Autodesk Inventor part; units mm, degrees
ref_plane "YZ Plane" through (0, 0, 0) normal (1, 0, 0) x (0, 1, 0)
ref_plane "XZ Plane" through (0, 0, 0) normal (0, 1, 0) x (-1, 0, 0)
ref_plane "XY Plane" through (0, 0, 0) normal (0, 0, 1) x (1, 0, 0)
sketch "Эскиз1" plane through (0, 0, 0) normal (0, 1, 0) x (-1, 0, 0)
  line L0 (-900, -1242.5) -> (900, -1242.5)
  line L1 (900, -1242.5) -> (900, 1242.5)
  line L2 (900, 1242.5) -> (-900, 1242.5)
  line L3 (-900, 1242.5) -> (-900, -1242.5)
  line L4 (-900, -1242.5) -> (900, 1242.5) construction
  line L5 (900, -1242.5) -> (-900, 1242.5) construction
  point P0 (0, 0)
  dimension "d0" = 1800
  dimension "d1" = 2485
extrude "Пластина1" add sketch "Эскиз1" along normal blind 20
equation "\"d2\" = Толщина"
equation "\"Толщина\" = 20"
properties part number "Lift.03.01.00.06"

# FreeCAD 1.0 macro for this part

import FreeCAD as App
import Part
import Sketcher
from FreeCAD import Vector
Q = App.Units.Quantity

doc = App.newDocument("Part")
body = doc.addObject("PartDesign::Body", "Body")

# Sketch on XZ plane
sketch1 = body.newObject("Sketcher::SketchObject", "Sketch")
sketch1.AttachmentSupport = (doc.getObject("XZ_Plane"), [""])
sketch1.MapMode = "FlatFace"
sketch1.addGeometry([
    Part.LineSegment(Vector(900, 1242, 0), Vector(900, -1242, 0)),
    Part.LineSegment(Vector(900, -1242, 0), Vector(-900, -1242, 0)),
    Part.LineSegment(Vector(-900, -1242, 0), Vector(-900, 1242, 0)),
    Part.LineSegment(Vector(-900, 1242, 0), Vector(900, 1242, 0)),
], False)
sketch1.addConstraint([
    Sketcher.Constraint("Coincident", 0, 2, 1, 1),
    Sketcher.Constraint("Coincident", 1, 2, 2, 1),
    Sketcher.Constraint("Coincident", 2, 2, 3, 1),
    Sketcher.Constraint("Coincident", 3, 2, 0, 1),
    Sketcher.Constraint("Vertical", 0),
    Sketcher.Constraint("Horizontal", 1),
    Sketcher.Constraint("Vertical", 2),
    Sketcher.Constraint("Horizontal", 3),
    Sketcher.Constraint("Symmetric", 0, 2, 2, 2, -1, 1),
    Sketcher.Constraint("DistanceX", 1, 2, 1, 1, Q("1800 mm")),
    Sketcher.Constraint("DistanceY", 0, 2, 0, 1, Q("2485 mm")),
])
pad1 = body.newObject("PartDesign::Pad", "Pad")
pad1.Profile = sketch1
pad1.Length = 20
pad1.Reversed = True

doc.recompute()
